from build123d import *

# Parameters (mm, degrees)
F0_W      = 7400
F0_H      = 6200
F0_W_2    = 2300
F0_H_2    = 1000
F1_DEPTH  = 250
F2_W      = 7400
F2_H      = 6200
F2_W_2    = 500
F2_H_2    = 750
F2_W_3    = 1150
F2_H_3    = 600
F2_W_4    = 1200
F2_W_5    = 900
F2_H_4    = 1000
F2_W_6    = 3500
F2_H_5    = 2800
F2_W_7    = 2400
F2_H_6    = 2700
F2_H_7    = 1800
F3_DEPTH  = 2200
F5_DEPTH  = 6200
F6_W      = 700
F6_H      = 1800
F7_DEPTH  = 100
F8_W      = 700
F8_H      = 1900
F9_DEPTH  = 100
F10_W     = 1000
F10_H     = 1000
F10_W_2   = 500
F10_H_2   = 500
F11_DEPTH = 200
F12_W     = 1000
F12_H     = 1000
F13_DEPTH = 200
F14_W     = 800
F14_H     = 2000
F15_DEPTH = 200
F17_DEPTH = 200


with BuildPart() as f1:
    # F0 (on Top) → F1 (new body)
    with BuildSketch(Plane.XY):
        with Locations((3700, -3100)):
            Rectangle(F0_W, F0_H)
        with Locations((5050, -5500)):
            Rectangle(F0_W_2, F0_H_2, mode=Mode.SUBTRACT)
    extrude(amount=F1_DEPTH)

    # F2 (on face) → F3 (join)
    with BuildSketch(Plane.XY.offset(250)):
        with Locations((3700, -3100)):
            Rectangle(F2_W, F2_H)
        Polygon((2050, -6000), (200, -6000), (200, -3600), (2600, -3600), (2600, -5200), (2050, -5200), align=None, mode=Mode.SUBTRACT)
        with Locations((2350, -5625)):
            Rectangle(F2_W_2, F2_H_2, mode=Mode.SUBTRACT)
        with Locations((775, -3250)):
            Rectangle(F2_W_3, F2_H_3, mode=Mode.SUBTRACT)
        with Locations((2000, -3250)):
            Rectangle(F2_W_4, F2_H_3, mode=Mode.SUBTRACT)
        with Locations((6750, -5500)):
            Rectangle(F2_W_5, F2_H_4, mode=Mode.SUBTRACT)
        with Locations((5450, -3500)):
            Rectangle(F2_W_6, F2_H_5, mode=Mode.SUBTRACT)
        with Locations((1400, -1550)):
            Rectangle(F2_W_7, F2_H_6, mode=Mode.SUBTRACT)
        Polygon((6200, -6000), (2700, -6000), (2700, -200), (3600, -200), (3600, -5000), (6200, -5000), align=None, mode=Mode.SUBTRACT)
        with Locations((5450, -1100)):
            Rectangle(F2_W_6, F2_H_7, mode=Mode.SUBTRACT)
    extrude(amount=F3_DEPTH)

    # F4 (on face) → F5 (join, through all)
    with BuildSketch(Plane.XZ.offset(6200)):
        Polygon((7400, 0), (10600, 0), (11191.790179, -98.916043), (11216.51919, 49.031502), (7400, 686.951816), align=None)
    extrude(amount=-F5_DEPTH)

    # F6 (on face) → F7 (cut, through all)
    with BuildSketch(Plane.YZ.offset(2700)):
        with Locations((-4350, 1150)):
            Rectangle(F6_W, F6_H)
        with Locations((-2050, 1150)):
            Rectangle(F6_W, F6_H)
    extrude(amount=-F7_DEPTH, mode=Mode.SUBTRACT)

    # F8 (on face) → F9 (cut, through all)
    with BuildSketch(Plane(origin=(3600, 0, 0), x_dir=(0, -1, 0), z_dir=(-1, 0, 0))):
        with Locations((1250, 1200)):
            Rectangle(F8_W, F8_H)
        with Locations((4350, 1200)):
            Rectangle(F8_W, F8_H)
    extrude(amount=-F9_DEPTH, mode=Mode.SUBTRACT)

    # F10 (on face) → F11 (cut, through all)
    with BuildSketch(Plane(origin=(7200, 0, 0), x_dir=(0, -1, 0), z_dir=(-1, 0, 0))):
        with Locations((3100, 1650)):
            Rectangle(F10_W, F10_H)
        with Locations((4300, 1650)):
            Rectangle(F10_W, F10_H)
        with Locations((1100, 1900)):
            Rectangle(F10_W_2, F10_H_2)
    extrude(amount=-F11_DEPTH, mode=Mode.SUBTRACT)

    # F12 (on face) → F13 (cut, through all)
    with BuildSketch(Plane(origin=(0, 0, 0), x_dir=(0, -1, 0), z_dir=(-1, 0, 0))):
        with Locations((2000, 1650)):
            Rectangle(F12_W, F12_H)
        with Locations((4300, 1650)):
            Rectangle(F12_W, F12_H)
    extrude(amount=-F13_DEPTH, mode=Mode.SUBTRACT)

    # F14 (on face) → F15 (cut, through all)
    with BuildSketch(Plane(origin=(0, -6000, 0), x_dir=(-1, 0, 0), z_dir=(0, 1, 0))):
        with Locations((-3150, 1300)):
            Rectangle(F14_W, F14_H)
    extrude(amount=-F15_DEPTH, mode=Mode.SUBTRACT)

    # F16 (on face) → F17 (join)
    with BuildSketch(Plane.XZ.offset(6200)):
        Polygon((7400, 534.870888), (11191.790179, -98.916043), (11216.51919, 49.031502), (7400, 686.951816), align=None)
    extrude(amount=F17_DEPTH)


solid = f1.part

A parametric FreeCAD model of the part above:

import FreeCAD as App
import Part
import Sketcher


def add_polygon(sketch, points):
    """Adds a closed chain of lines whose ends are joined by coincident constraints."""
    first, n = sketch.GeometryCount, len(points)
    for a, b in zip(points, points[1:] + points[:1]):
        sketch.addGeometry(Part.LineSegment(App.Vector(*a, 0), App.Vector(*b, 0)), False)
    for i in range(n):
        sketch.addConstraint(Sketcher.Constraint("Coincident", first + i, 2, first + (i + 1) % n, 1))

doc = App.newDocument("Part")
body = doc.addObject("PartDesign::Body", "Body")

sketch1 = body.newObject("Sketcher::SketchObject", "Sketch")
sketch1.AttachmentSupport = (doc.getObject("XY_Plane"), [""])
sketch1.MapMode = "FlatFace"
add_polygon(sketch1, [(0, 0), (0, -6200), (7400, -6200), (7400, 0)])
add_polygon(sketch1, [(6200, -6000), (3900, -6000), (3900, -5000), (6200, -5000)])
sketch1.addConstraint([
    Sketcher.Constraint("Vertical", 0),
    Sketcher.Constraint("Horizontal", 1),
    Sketcher.Constraint("Vertical", 2),
    Sketcher.Constraint("Horizontal", 3),
    Sketcher.Constraint("Horizontal", 4),
    Sketcher.Constraint("Vertical", 5),
    Sketcher.Constraint("Horizontal", 6),
    Sketcher.Constraint("Vertical", 7),
    Sketcher.Constraint("Coincident", 3, 2, -1, 1),
    Sketcher.Constraint("DistanceX", 1, 1, 1, 2, 7400.0),
    Sketcher.Constraint("DistanceX", 4, 2, 4, 1, 2300.0),
    Sketcher.Constraint("DistanceY", 0, 2, 0, 1, 6200.0),
    Sketcher.Constraint("DistanceY", 5, 1, 5, 2, 1000.0),
    Sketcher.Constraint("DistanceX", -1, 1, 4, 2, 3900.0),
    Sketcher.Constraint("DistanceY", 4, 2, -1, 1, 6000.0),
])
pad1 = body.newObject("PartDesign::Pad", "Pad")
pad1.Profile = sketch1
pad1.Length = 250

sketch2 = body.newObject("Sketcher::SketchObject", "Sketch001")
sketch2.AttachmentSupport = (doc.getObject("XY_Plane"), [""])
sketch2.MapMode = "FlatFace"
sketch2.AttachmentOffset = App.Placement(App.Vector(0, 0, 250), App.Rotation())
add_polygon(sketch2, [(0, 0), (0, -6200), (7400, -6200), (7400, 0)])
add_polygon(sketch2, [(2050, -5200), (2050, -6000), (200, -6000), (200, -3600), (2600, -3600), (2600, -5200)])
add_polygon(sketch2, [(2600, -6000), (2100, -6000), (2100, -5250), (2600, -5250)])
add_polygon(sketch2, [(1350, -3550), (200, -3550), (200, -2950), (1350, -2950)])
add_polygon(sketch2, [(2600, -3550), (1400, -3550), (1400, -2950), (2600, -2950)])
add_polygon(sketch2, [(7200, -6000), (6300, -6000), (6300, -5000), (7200, -5000)])
add_polygon(sketch2, [(6200, -5000), (6200, -6000), (2700, -6000), (2700, -200), (3600, -200), (3600, -5000)])
add_polygon(sketch2, [(7200, -4900), (3700, -4900), (3700, -2100), (7200, -2100)])
add_polygon(sketch2, [(2600, -2900), (200, -2900), (200, -200), (2600, -200)])
add_polygon(sketch2, [(7200, -2000), (3700, -2000), (3700, -200), (7200, -200)])
sketch2.addConstraint([
    Sketcher.Constraint("Vertical", 0),
    Sketcher.Constraint("Horizontal", 1),
    Sketcher.Constraint("Vertical", 2),
    Sketcher.Constraint("Horizontal", 3),
    Sketcher.Constraint("Vertical", 4),
    Sketcher.Constraint("Horizontal", 5),
    Sketcher.Constraint("Vertical", 6),
    Sketcher.Constraint("Horizontal", 7),
    Sketcher.Constraint("Vertical", 8),
    Sketcher.Constraint("Horizontal", 9),
    Sketcher.Constraint("Horizontal", 10),
    Sketcher.Constraint("Vertical", 11),
    Sketcher.Constraint("Horizontal", 12),
    Sketcher.Constraint("Vertical", 13),
    Sketcher.Constraint("Horizontal", 14),
    Sketcher.Constraint("Vertical", 15),
    Sketcher.Constraint("Horizontal", 16),
    Sketcher.Constraint("Vertical", 17),
    Sketcher.Constraint("Horizontal", 18),
    Sketcher.Constraint("Vertical", 19),
    Sketcher.Constraint("Horizontal", 20),
    Sketcher.Constraint("Vertical", 21),
    Sketcher.Constraint("Horizontal", 22),
    Sketcher.Constraint("Vertical", 23),
    Sketcher.Constraint("Horizontal", 24),
    Sketcher.Constraint("Vertical", 25),
    Sketcher.Constraint("Vertical", 26),
    Sketcher.Constraint("Horizontal", 27),
    Sketcher.Constraint("Vertical", 28),
    Sketcher.Constraint("Horizontal", 29),
    Sketcher.Constraint("Vertical", 30),
    Sketcher.Constraint("Horizontal", 31),
    Sketcher.Constraint("Horizontal", 32),
    Sketcher.Constraint("Vertical", 33),
    Sketcher.Constraint("Horizontal", 34),
    Sketcher.Constraint("Vertical", 35),
    Sketcher.Constraint("Horizontal", 36),
    Sketcher.Constraint("Vertical", 37),
    Sketcher.Constraint("Horizontal", 38),
    Sketcher.Constraint("Vertical", 39),
    Sketcher.Constraint("Horizontal", 40),
    Sketcher.Constraint("Vertical", 41),
    Sketcher.Constraint("Horizontal", 42),
    Sketcher.Constraint("Vertical", 43),
    Sketcher.Constraint("Coincident", 3, 2, -1, 1),
    Sketcher.Constraint("Horizontal", 5, 2, 10, 2),
    Sketcher.Constraint("Horizontal", 17, 2, 18, 2),
    Sketcher.Constraint("Horizontal", 16, 2, 19, 2),
    Sketcher.Constraint("Horizontal", 13, 2, 22, 2),
    Sketcher.Constraint("Horizontal", 25, 2, 26, 2),
    Sketcher.Constraint("Horizontal", 24, 2, 30, 2),
    Sketcher.Constraint("Horizontal", 29, 2, 37, 2),
    Sketcher.Constraint("Horizontal", 38, 2, 41, 2),
    Sketcher.Constraint("Vertical", 8, 2, 12, 2),
    Sketcher.Constraint("Vertical", 6, 2, 14, 2),
    Sketcher.Constraint("Vertical", 13, 2, 20, 2),
    Sketcher.Constraint("Vertical", 25, 2, 34, 2),
    Sketcher.Constraint("Vertical", 15, 2, 36, 2),
    Sketcher.Constraint("Vertical", 21, 2, 38, 2),
    Sketcher.Constraint("Vertical", 33, 2, 40, 2),
    Sketcher.Constraint("Vertical", 35, 2, 42, 2),
    Sketcher.Constraint("Equal", 24, 29),
    Sketcher.Constraint("Equal", 27, 32),
    Sketcher.Constraint("Equal", 38, 6),
    Sketcher.Constraint("DistanceX", 1, 1, 1, 2, 7400.0),
    Sketcher.Constraint("DistanceX", 5, 2, 5, 1, 1850.0),
    Sketcher.Constraint("DistanceX", 7, 1, 7, 2, 2400.0),
    Sketcher.Constraint("DistanceX", 10, 2, 10, 1, 500.0),
    Sketcher.Constraint("DistanceX", 14, 2, 14, 1, 1150.0),
    Sketcher.Constraint("DistanceX", 18, 2, 18, 1, 1200.0),
    Sketcher.Constraint("DistanceX", 22, 2, 22, 1, 900.0),
    Sketcher.Constraint("DistanceX", 27, 2, 27, 1, 3500.0),
    Sketcher.Constraint("DistanceY", 0, 2, 0, 1, 6200.0),
    Sketcher.Constraint("DistanceY", 4, 2, 4, 1, 800.0),
    Sketcher.Constraint("DistanceY", 11, 1, 11, 2, 750.0),
    Sketcher.Constraint("DistanceY", 15, 1, 15, 2, 600.0),
    Sketcher.Constraint("DistanceY", 23, 1, 23, 2, 1000.0),
    Sketcher.Constraint("DistanceY", 28, 1, 28, 2, 5800.0),
    Sketcher.Constraint("DistanceY", 33, 1, 33, 2, 2800.0),
    Sketcher.Constraint("DistanceY", 37, 1, 37, 2, 2700.0),
    Sketcher.Constraint("DistanceY", 41, 1, 41, 2, 1800.0),
    Sketcher.Constraint("DistanceX", -1, 1, 4, 2, 2050.0),
    Sketcher.Constraint("DistanceY", 4, 2, -1, 1, 6000.0),
    Sketcher.Constraint("DistanceY", 14, 2, -1, 1, 3550.0),
    Sketcher.Constraint("DistanceX", -1, 1, 22, 2, 6300.0),
    Sketcher.Constraint("DistanceX", -1, 1, 26, 2, 6200.0),
    Sketcher.Constraint("DistanceY", 32, 2, -1, 1, 4900.0),
])
pad2 = body.newObject("PartDesign::Pad", "Pad001")
pad2.Profile = sketch2
pad2.Length = 2200

sketch3 = body.newObject("Sketcher::SketchObject", "Sketch002")
sketch3.AttachmentSupport = (doc.getObject("XZ_Plane"), [""])
sketch3.MapMode = "FlatFace"
sketch3.AttachmentOffset = App.Placement(App.Vector(0, 0, 6200), App.Rotation())
add_polygon(sketch3, [(7400, 0), (10600, 0), (11192, -99), (11217, 49), (7400, 687)])
sketch3.addConstraint([
    Sketcher.Constraint("Horizontal", 0),
    Sketcher.Constraint("Vertical", 4),
    Sketcher.Constraint("PointOnObject", 0, 2, -1),
    Sketcher.Constraint("Perpendicular", 1, 2),
    Sketcher.Constraint("Perpendicular", 2, 3),
    Sketcher.Constraint("DistanceX", 0, 1, 0, 2, 3200.0),
    Sketcher.Constraint("Distance", 1, 600.0),
    Sketcher.Constraint("Distance", 2, 150.0),
    Sketcher.Constraint("DistanceX", -1, 1, 0, 2, 10600.0),
    Sketcher.Constraint("DistanceY", 4, 2, 4, 1, 686.951816),
])
pad3 = body.newObject("PartDesign::Pad", "Pad002")
pad3.Profile = sketch3
pad3.Length = 6200
pad3.Reversed = True

sketch4 = body.newObject("Sketcher::SketchObject", "Sketch003")
sketch4.AttachmentSupport = (doc.getObject("YZ_Plane"), [""])
sketch4.MapMode = "FlatFace"
sketch4.AttachmentOffset = App.Placement(App.Vector(0, 0, 2700), App.Rotation())
add_polygon(sketch4, [(-4700, 2050), (-4700, 250), (-4000, 250), (-4000, 2050)])
add_polygon(sketch4, [(-2400, 2050), (-2400, 250), (-1700, 250), (-1700, 2050)])
sketch4.addConstraint([
    Sketcher.Constraint("Vertical", 0),
    Sketcher.Constraint("Horizontal", 1),
    Sketcher.Constraint("Vertical", 2),
    Sketcher.Constraint("Horizontal", 3),
    Sketcher.Constraint("Vertical", 4),
    Sketcher.Constraint("Horizontal", 5),
    Sketcher.Constraint("Vertical", 6),
    Sketcher.Constraint("Horizontal", 7),
    Sketcher.Constraint("Horizontal", 1, 2, 4, 2),
    Sketcher.Constraint("Horizontal", 3, 2, 6, 2),
    Sketcher.Constraint("Equal", 3, 5),
    Sketcher.Constraint("DistanceX", 1, 1, 1, 2, 700.0),
    Sketcher.Constraint("DistanceY", 0, 2, 0, 1, 1800.0),
    Sketcher.Constraint("DistanceX", 0, 2, -1, 1, 4700.0),
    Sketcher.Constraint("DistanceY", -1, 1, 0, 2, 250.0),
    Sketcher.Constraint("DistanceX", 4, 2, -1, 1, 2400.0),
])
pocket1 = body.newObject("PartDesign::Pocket", "Pocket")
pocket1.Profile = sketch4
pocket1.Length = 100

sketch5 = body.newObject("Sketcher::SketchObject", "Sketch004")
sketch5.AttachmentSupport = (doc.getObject("YZ_Plane"), [""])
sketch5.MapMode = "FlatFace"
sketch5.AttachmentOffset = App.Placement(App.Vector(0, 0, 3600), App.Rotation())
add_polygon(sketch5, [(-900, 2150), (-900, 250), (-1600, 250), (-1600, 2150)])
add_polygon(sketch5, [(-4000, 2150), (-4000, 250), (-4700, 250), (-4700, 2150)])
sketch5.addConstraint([
    Sketcher.Constraint("Vertical", 0),
    Sketcher.Constraint("Horizontal", 1),
    Sketcher.Constraint("Vertical", 2),
    Sketcher.Constraint("Horizontal", 3),
    Sketcher.Constraint("Vertical", 4),
    Sketcher.Constraint("Horizontal", 5),
    Sketcher.Constraint("Vertical", 6),
    Sketcher.Constraint("Horizontal", 7),
    Sketcher.Constraint("Horizontal", 1, 2, 4, 2),
    Sketcher.Constraint("Horizontal", 3, 2, 6, 2),
    Sketcher.Constraint("Equal", 3, 5),
    Sketcher.Constraint("DistanceX", 1, 2, 1, 1, 700.0),
    Sketcher.Constraint("DistanceY", 0, 2, 0, 1, 1900.0),
    Sketcher.Constraint("DistanceX", 0, 2, -1, 1, 900.0),
    Sketcher.Constraint("DistanceY", -1, 1, 0, 2, 250.0),
    Sketcher.Constraint("DistanceX", 4, 2, -1, 1, 4000.0),
])
pocket2 = body.newObject("PartDesign::Pocket", "Pocket001")
pocket2.Profile = sketch5
pocket2.Length = 100
pocket2.Reversed = True

sketch6 = body.newObject("Sketcher::SketchObject", "Sketch005")
sketch6.AttachmentSupport = (doc.getObject("YZ_Plane"), [""])
sketch6.MapMode = "FlatFace"
sketch6.AttachmentOffset = App.Placement(App.Vector(0, 0, 7200), App.Rotation())
add_polygon(sketch6, [(-2600, 2150), (-2600, 1150), (-3600, 1150), (-3600, 2150)])
add_polygon(sketch6, [(-3800, 2150), (-3800, 1150), (-4800, 1150), (-4800, 2150)])
add_polygon(sketch6, [(-850, 2150), (-850, 1650), (-1350, 1650), (-1350, 2150)])
sketch6.addConstraint([
    Sketcher.Constraint("Vertical", 0),
    Sketcher.Constraint("Horizontal", 1),
    Sketcher.Constraint("Vertical", 2),
    Sketcher.Constraint("Horizontal", 3),
    Sketcher.Constraint("Vertical", 4),
    Sketcher.Constraint("Horizontal", 5),
    Sketcher.Constraint("Vertical", 6),
    Sketcher.Constraint("Horizontal", 7),
    Sketcher.Constraint("Vertical", 8),
    Sketcher.Constraint("Horizontal", 9),
    Sketcher.Constraint("Vertical", 10),
    Sketcher.Constraint("Horizontal", 11),
    Sketcher.Constraint("Horizontal", 1, 2, 4, 2),
    Sketcher.Constraint("Horizontal", 3, 2, 6, 2),
    Sketcher.Constraint("Horizontal", 7, 2, 10, 2),
    Sketcher.Constraint("Equal", 3, 5),
    Sketcher.Constraint("Equal", 7, 0),
    Sketcher.Constraint("Equal", 11, 8),
    Sketcher.Constraint("DistanceX", 1, 2, 1, 1, 1000.0),
    Sketcher.Constraint("DistanceX", 9, 2, 9, 1, 500.0),
    Sketcher.Constraint("DistanceX", 0, 2, -1, 1, 2600.0),
    Sketcher.Constraint("DistanceY", -1, 1, 0, 2, 1150.0),
    Sketcher.Constraint("DistanceX", 4, 2, -1, 1, 3800.0),
    Sketcher.Constraint("DistanceX", 8, 2, -1, 1, 850.0),
])
pocket3 = body.newObject("PartDesign::Pocket", "Pocket002")
pocket3.Profile = sketch6
pocket3.Type = "ThroughAll"
pocket3.Reversed = True

sketch7 = body.newObject("Sketcher::SketchObject", "Sketch006")
sketch7.AttachmentSupport = (doc.getObject("YZ_Plane"), [""])
sketch7.MapMode = "FlatFace"
add_polygon(sketch7, [(-1500, 2150), (-1500, 1150), (-2500, 1150), (-2500, 2150)])
add_polygon(sketch7, [(-3800, 2150), (-3800, 1150), (-4800, 1150), (-4800, 2150)])
sketch7.addConstraint([
    Sketcher.Constraint("Vertical", 0),
    Sketcher.Constraint("Horizontal", 1),
    Sketcher.Constraint("Vertical", 2),
    Sketcher.Constraint("Horizontal", 3),
    Sketcher.Constraint("Vertical", 4),
    Sketcher.Constraint("Horizontal", 5),
    Sketcher.Constraint("Vertical", 6),
    Sketcher.Constraint("Horizontal", 7),
    Sketcher.Constraint("Horizontal", 1, 2, 4, 2),
    Sketcher.Constraint("Horizontal", 3, 2, 6, 2),
    Sketcher.Constraint("Equal", 3, 5),
    Sketcher.Constraint("Equal", 7, 0),
    Sketcher.Constraint("DistanceX", 1, 2, 1, 1, 1000.0),
    Sketcher.Constraint("DistanceX", 0, 2, -1, 1, 1500.0),
    Sketcher.Constraint("DistanceY", -1, 1, 0, 2, 1150.0),
    Sketcher.Constraint("DistanceX", 4, 2, -1, 1, 3800.0),
])
pocket4 = body.newObject("PartDesign::Pocket", "Pocket003")
pocket4.Profile = sketch7
pocket4.Length = 200
pocket4.Reversed = True

sketch8 = body.newObject("Sketcher::SketchObject", "Sketch007")
sketch8.AttachmentSupport = (doc.getObject("XZ_Plane"), [""])
sketch8.MapMode = "FlatFace"
sketch8.AttachmentOffset = App.Placement(App.Vector(0, 0, 6000), App.Rotation())
add_polygon(sketch8, [(3550, 2300), (3550, 300), (2750, 300), (2750, 2300)])
sketch8.addConstraint([
    Sketcher.Constraint("Vertical", 0),
    Sketcher.Constraint("Horizontal", 1),
    Sketcher.Constraint("Vertical", 2),
    Sketcher.Constraint("Horizontal", 3),
    Sketcher.Constraint("DistanceX", 1, 2, 1, 1, 800.0),
    Sketcher.Constraint("DistanceY", 0, 2, 0, 1, 2000.0),
    Sketcher.Constraint("DistanceX", -1, 1, 0, 2, 3550.0),
    Sketcher.Constraint("DistanceY", -1, 1, 0, 2, 300.0),
])
pocket5 = body.newObject("PartDesign::Pocket", "Pocket004")
pocket5.Profile = sketch8
pocket5.Type = "ThroughAll"
pocket5.Reversed = True

sketch9 = body.newObject("Sketcher::SketchObject", "Sketch008")
sketch9.AttachmentSupport = (doc.getObject("XZ_Plane"), [""])
sketch9.MapMode = "FlatFace"
sketch9.AttachmentOffset = App.Placement(App.Vector(0, 0, 6200), App.Rotation())
add_polygon(sketch9, [(7400, 534.870888), (11191.790179, -98.916043), (11216.51919, 49.031502), (7400, 686.951816)])
sketch9.addConstraint([
    Sketcher.Constraint("Vertical", 3),
    Sketcher.Constraint("Distance", 1, 150.0),
    Sketcher.Constraint("DistanceX", -1, 1, 2, 2, 7400.0),
    Sketcher.Constraint("DistanceY", 3, 2, 3, 1, 152.080928),
    Sketcher.Constraint("DistanceX", -1, 1, 0, 2, 11191.790179),
    Sketcher.Constraint("DistanceX", -1, 1, 1, 2, 11216.51919),
    Sketcher.Constraint("DistanceY", -1, 1, 3, 2, 534.870888),
    Sketcher.Constraint("DistanceY", 0, 2, 2, 2, 785.867859),
])
pad4 = body.newObject("PartDesign::Pad", "Pad003")
pad4.Profile = sketch9
pad4.Length = 200

doc.recompute()
